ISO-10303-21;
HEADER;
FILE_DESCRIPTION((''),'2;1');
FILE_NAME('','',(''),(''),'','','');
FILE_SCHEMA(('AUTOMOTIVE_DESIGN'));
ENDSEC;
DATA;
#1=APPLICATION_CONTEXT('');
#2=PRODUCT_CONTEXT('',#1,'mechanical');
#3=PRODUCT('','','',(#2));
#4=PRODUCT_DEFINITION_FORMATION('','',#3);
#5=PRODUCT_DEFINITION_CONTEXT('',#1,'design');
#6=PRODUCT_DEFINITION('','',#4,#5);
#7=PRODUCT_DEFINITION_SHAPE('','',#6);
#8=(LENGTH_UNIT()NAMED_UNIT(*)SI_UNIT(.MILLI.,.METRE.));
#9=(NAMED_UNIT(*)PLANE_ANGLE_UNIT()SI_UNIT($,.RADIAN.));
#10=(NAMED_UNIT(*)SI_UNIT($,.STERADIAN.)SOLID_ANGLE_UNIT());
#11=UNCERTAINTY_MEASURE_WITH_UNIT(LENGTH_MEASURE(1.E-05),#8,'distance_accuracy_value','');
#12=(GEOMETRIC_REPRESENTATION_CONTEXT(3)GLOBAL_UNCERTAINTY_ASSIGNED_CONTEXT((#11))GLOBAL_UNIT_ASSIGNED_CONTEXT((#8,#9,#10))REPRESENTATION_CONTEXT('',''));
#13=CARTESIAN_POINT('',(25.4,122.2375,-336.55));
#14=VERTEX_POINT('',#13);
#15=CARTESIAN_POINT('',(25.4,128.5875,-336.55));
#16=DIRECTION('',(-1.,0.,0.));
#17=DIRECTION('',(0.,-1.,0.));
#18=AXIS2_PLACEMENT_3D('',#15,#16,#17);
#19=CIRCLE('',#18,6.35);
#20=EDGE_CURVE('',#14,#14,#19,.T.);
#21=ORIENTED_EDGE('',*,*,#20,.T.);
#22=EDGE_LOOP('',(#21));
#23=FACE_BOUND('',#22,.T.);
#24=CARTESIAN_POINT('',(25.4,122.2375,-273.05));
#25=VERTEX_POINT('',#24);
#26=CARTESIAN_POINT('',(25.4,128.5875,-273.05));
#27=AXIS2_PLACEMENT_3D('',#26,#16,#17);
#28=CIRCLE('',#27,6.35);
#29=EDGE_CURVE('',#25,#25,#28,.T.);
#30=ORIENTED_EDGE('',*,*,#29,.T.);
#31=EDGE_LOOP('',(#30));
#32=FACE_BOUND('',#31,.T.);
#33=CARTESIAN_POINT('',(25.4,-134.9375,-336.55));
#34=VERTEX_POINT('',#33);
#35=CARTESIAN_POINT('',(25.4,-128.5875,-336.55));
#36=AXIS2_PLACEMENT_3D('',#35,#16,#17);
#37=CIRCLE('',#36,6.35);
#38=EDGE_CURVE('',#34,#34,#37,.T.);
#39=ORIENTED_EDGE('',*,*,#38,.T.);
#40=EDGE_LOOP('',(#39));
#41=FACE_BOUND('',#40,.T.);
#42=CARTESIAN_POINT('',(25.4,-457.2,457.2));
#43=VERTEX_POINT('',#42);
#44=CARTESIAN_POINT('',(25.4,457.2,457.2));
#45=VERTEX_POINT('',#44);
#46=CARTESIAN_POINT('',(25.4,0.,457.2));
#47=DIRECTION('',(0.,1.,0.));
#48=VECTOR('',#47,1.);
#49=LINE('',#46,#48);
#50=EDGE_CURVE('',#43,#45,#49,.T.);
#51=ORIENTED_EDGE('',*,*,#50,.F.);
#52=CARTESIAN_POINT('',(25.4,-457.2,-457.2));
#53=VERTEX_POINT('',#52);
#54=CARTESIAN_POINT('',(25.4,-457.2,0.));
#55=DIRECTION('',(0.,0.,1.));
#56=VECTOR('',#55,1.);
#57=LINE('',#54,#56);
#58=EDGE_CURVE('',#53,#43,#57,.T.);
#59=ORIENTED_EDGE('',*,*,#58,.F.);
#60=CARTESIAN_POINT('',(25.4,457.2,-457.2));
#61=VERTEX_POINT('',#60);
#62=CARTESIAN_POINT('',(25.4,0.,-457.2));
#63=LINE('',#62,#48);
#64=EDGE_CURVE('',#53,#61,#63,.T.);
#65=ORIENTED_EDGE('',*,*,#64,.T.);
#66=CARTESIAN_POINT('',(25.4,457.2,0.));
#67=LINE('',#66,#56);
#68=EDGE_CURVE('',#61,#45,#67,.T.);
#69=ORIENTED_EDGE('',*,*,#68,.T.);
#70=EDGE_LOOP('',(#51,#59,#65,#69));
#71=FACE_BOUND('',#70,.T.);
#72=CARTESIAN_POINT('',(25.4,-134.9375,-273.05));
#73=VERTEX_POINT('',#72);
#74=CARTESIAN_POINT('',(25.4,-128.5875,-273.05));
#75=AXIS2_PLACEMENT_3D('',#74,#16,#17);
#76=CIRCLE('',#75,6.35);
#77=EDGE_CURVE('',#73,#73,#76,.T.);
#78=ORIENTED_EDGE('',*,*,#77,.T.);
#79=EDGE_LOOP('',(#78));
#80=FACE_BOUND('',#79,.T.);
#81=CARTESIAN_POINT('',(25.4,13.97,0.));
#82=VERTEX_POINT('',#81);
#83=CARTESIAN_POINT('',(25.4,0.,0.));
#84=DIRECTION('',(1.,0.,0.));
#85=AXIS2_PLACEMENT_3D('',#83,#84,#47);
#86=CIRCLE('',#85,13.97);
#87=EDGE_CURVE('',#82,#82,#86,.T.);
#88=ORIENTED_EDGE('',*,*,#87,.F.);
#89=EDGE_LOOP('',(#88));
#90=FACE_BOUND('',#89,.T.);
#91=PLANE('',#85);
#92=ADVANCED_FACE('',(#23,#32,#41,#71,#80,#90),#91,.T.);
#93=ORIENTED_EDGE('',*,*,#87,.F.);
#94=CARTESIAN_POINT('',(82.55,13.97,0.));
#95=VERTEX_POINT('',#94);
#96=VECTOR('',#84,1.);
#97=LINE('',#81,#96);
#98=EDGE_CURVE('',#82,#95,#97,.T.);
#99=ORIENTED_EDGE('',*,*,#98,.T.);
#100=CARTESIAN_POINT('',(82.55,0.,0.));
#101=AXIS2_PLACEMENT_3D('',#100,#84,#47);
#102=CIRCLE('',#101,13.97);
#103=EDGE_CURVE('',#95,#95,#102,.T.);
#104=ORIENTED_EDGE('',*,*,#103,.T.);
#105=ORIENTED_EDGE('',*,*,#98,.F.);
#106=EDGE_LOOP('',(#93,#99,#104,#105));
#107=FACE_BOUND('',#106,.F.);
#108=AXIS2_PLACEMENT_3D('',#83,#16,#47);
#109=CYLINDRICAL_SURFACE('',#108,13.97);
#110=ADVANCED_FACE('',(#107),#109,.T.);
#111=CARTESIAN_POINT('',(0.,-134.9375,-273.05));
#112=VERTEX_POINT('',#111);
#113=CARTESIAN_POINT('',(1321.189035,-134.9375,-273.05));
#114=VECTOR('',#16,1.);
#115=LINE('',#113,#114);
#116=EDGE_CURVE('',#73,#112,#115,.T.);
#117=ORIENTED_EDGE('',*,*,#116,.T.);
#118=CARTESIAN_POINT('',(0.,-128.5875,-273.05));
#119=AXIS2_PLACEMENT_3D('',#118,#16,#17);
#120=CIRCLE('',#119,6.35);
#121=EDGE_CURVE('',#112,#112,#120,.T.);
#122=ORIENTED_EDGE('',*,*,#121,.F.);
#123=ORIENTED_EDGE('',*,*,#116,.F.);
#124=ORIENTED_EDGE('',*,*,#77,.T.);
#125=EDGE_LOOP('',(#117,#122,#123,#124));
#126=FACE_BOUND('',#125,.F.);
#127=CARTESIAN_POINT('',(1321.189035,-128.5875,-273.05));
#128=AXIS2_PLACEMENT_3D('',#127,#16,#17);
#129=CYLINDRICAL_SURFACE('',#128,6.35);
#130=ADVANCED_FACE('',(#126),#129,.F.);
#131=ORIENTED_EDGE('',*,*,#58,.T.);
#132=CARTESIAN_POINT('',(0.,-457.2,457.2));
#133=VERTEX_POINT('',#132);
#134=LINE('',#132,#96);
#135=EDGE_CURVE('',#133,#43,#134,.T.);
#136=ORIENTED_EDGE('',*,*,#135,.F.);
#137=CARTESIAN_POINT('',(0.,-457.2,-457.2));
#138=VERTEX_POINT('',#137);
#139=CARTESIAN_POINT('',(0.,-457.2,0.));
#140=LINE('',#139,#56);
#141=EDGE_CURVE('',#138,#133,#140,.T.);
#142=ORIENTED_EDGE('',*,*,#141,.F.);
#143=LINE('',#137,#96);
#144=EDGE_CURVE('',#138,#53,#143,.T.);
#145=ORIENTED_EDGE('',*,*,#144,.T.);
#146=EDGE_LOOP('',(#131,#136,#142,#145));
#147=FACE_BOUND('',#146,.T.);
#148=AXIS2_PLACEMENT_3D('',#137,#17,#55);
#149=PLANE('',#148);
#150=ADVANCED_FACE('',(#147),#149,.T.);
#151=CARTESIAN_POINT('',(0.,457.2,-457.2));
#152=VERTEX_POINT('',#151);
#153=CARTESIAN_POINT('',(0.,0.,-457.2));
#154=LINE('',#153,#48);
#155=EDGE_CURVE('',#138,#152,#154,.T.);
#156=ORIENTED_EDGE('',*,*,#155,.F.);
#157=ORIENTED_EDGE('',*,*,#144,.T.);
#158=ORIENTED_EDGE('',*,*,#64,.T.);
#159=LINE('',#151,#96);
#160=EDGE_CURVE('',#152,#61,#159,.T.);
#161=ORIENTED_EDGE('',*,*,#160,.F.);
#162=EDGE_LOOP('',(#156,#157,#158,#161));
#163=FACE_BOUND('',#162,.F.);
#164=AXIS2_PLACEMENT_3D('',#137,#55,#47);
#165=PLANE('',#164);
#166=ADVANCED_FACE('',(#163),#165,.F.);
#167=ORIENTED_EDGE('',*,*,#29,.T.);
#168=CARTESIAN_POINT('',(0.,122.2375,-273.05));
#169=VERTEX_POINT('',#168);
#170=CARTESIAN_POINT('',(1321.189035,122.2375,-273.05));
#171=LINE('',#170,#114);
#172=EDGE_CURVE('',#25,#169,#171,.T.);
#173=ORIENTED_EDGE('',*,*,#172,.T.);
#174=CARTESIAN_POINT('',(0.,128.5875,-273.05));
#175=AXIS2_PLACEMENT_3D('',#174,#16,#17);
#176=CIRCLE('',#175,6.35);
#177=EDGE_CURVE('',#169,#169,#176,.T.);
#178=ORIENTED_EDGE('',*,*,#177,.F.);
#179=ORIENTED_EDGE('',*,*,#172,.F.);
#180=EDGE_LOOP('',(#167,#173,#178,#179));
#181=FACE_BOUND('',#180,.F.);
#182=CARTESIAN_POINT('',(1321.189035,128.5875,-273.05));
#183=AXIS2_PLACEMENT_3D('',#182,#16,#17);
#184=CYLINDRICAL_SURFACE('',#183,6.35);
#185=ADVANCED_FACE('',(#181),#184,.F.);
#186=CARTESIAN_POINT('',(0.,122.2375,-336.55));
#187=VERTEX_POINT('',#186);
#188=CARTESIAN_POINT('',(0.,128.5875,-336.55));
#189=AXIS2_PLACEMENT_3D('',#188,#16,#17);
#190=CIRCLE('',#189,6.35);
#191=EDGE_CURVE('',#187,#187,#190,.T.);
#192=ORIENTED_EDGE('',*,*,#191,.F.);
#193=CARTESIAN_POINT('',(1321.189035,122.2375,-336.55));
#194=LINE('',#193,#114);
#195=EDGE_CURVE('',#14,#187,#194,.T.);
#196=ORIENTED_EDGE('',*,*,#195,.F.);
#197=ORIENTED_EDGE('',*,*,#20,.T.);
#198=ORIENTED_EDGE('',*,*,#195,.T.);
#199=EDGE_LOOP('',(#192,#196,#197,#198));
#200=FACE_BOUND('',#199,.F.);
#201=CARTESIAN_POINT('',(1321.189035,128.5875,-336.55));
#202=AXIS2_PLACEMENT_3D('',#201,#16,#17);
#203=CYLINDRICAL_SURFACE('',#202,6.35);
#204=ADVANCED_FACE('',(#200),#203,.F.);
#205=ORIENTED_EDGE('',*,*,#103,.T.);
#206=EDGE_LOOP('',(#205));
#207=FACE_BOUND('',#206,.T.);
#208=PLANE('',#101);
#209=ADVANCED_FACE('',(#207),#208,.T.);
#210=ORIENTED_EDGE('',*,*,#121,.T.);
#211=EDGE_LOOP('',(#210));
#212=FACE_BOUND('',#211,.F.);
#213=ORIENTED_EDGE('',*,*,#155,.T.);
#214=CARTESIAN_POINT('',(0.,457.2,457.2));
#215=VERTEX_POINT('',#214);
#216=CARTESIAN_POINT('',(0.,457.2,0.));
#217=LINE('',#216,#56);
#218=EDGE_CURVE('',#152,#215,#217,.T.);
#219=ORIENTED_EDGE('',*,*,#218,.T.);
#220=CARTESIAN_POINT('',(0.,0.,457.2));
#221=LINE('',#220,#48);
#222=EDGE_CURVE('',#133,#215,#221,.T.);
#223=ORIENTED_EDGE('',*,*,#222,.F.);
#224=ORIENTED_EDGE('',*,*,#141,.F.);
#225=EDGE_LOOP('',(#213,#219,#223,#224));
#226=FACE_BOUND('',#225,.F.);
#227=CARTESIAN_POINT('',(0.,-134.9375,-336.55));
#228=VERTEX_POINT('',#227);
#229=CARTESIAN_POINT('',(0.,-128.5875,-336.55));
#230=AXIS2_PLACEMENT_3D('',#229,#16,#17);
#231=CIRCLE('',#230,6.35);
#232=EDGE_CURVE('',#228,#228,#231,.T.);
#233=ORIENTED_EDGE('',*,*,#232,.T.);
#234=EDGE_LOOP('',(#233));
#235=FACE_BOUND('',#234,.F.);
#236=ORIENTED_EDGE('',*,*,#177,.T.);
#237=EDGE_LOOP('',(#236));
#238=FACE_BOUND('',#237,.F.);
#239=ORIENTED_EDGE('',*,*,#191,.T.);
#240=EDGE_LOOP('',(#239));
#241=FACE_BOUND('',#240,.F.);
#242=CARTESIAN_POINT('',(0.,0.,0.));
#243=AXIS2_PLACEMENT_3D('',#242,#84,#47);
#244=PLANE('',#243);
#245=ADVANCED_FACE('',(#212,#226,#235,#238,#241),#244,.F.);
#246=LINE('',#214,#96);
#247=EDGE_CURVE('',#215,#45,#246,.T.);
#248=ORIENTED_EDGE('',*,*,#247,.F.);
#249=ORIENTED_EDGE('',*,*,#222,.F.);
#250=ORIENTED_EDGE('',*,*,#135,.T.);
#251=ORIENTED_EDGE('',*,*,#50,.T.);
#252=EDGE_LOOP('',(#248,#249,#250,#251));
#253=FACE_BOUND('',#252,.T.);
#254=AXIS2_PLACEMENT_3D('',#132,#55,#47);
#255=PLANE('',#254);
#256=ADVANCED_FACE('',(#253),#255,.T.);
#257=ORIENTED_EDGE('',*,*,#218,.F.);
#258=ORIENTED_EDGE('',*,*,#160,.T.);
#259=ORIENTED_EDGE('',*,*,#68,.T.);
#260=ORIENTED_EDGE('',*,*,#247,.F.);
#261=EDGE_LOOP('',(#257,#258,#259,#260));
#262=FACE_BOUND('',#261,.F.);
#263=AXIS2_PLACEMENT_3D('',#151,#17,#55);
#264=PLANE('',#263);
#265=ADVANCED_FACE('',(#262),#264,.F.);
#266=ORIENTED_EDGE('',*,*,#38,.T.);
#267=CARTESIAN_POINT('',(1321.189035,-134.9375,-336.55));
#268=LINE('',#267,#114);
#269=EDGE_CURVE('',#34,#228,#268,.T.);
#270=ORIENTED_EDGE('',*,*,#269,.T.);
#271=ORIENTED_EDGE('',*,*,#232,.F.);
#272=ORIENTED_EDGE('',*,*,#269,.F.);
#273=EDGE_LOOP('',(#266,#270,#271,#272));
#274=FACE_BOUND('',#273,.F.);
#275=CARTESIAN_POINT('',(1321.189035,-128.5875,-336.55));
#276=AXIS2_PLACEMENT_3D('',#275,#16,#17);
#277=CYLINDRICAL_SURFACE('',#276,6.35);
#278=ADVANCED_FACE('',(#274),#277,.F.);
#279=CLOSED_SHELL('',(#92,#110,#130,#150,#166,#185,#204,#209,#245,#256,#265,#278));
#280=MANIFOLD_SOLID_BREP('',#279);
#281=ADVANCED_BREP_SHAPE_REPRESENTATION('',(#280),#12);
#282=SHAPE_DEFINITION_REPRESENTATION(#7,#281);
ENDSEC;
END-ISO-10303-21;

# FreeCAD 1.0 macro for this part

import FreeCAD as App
import Part
import Sketcher
from FreeCAD import Vector
Q = App.Units.Quantity


def add_polygon(sketch, points):
    """Adds a closed chain of lines whose ends are joined by coincident constraints."""
    first, n = sketch.GeometryCount, len(points)
    for a, b in zip(points, points[1:] + points[:1]):
        sketch.addGeometry(Part.LineSegment(App.Vector(*a, 0), App.Vector(*b, 0)), False)
    for i in range(n):
        sketch.addConstraint(Sketcher.Constraint("Coincident", first + i, 2, first + (i + 1) % n, 1))

doc = App.newDocument("Part")
body = doc.addObject("PartDesign::Body", "Body")

# Sketch on YZ plane
sketch1 = doc.addObject("Sketcher::SketchObject", "Sketch")
body.addObject(sketch1)
sketch1.AttachmentSupport = (doc.YZ_Plane, [""])
sketch1.MapMode = "FlatFace"
add_polygon(sketch1, [(-457, 457), (-457, -457), (457, -457), (457, 457)])  # lines 0-3
sketch1.addConstraint([
    Sketcher.Constraint("Vertical", 0),
    Sketcher.Constraint("Horizontal", 1),
    Sketcher.Constraint("Vertical", 2),
    Sketcher.Constraint("Horizontal", 3),
    Sketcher.Constraint("Symmetric", 0, 2, 2, 2, -1, 1),
    Sketcher.Constraint("Equal", 3, 0),
    Sketcher.Constraint("DistanceX", 1, 1, 1, 2, Q("36 in")),
])
pad1 = doc.addObject("PartDesign::Pad", "Pad")
body.addObject(pad1)
pad1.Profile = sketch1
pad1.Length = Q("1 in")

# Sketch on YZ plane
sketch2 = doc.addObject("Sketcher::SketchObject", "Sketch001")
body.addObject(sketch2)
sketch2.AttachmentSupport = (doc.YZ_Plane, [""])
sketch2.MapMode = "FlatFace"
sketch2.AttachmentOffset = App.Placement(Vector(0, 0, 1 * 25.4), App.Rotation())
sketch2.addGeometry(Part.Circle(Vector(0, 0, 0), Vector(0, 0, 1), 14), False)
sketch2.addConstraint([
    Sketcher.Constraint("Coincident", 0, 3, -1, 1),
    Sketcher.Constraint("Diameter", 0, Q("1.1 in")),
])
pad2 = doc.addObject("PartDesign::Pad", "Pad001")
body.addObject(pad2)
pad2.Profile = sketch2
pad2.Length = Q("2.25 in")

# Sketch on YZ plane
sketch3 = doc.addObject("Sketcher::SketchObject", "Sketch002")
body.addObject(sketch3)
sketch3.AttachmentSupport = (doc.YZ_Plane, [""])
sketch3.MapMode = "FlatFace"
sketch3.AttachmentOffset = App.Placement(Vector(0, 0, 1 * 25.4), App.Rotation())
sketch3.addGeometry([
    Part.Circle(Vector(-129, -273, 0), Vector(0, 0, 1), 6),
    Part.Circle(Vector(129, -273, 0), Vector(0, 0, 1), 6),
    Part.Circle(Vector(129, -337, 0), Vector(0, 0, 1), 6),
    Part.Circle(Vector(-129, -337, 0), Vector(0, 0, 1), 6),
], False)
sketch3.addConstraint([
    Sketcher.Constraint("Equal", 0, 1),
    Sketcher.Constraint("Equal", 1, 2),
    Sketcher.Constraint("Equal", 2, 3),
    Sketcher.Constraint("Symmetric", 0, 3, 1, 3, -2),
    Sketcher.Constraint("Symmetric", 2, 3, 3, 3, -2),
    Sketcher.Constraint("Vertical", 1, 3, 2, 3),
    Sketcher.Constraint("Diameter", 0, Q("0.5 in")),
    Sketcher.Constraint("DistanceY", 2, 3, 1, 3, Q("2.5 in")),
    Sketcher.Constraint("DistanceY", 0, 3, -1, 1, Q("10.75 in")),
    Sketcher.Constraint("DistanceX", 0, 3, -1, 1, Q("5.0625 in")),
])
doc.recompute()
hole = doc.addObject("PartDesign::Hole", "Hole")
body.addObject(hole)
hole.Profile = sketch3
hole.ThreadType = "None"
hole.Diameter = Q("0.5 in")
hole.DepthType = "ThroughAll"

doc.recompute()
